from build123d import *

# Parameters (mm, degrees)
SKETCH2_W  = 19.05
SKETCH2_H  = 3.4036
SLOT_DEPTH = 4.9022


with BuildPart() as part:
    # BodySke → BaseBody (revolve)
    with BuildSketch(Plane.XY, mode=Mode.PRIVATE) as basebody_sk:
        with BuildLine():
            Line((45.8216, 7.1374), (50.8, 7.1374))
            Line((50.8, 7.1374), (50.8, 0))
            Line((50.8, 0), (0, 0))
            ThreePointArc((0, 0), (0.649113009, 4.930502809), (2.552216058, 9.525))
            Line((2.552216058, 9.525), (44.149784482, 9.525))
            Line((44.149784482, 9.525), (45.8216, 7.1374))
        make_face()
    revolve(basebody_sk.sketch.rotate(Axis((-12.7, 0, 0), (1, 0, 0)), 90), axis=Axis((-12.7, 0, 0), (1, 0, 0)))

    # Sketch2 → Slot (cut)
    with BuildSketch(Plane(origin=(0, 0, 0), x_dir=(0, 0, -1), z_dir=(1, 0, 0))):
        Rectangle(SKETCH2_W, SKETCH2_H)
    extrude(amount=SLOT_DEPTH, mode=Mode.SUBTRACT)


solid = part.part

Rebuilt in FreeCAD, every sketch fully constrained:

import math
import FreeCAD as App
import Part
import Sketcher
Q = App.Units.Quantity

doc = App.newDocument("Part")
body = doc.addObject("PartDesign::Body", "Body")

# Sketch on XY plane
sketch1 = body.newObject("Sketcher::SketchObject", "Sketch")
sketch1.AttachmentSupport = (doc.getObject("XY_Plane"), [""])
sketch1.MapMode = "FlatFace"
sketch1.addGeometry([
    Part.LineSegment(App.Vector(50.8, 7.1, 0), App.Vector(45.8, 7.1, 0)),  # 0
    Part.LineSegment(App.Vector(45.8, 7.1, 0), App.Vector(44.1, 9.5, 0)),  # 1
    Part.LineSegment(App.Vector(44.1, 9.5, 0), App.Vector(2.6, 9.5, 0)),  # 2
    Part.ArcOfCircle(Part.Circle(App.Vector(19, 0, 0), App.Vector(0, 0, 1), 19), math.radians(150), math.radians(180)),  # 3
    Part.LineSegment(App.Vector(0, 0, 0), App.Vector(50.8, 0, 0)),  # 4
    Part.LineSegment(App.Vector(50.8, 0, 0), App.Vector(50.8, 7.1, 0)),  # 5
], False)
sketch1.addConstraint([
    Sketcher.Constraint("Coincident", 0, 2, 1, 1),
    Sketcher.Constraint("Coincident", 1, 2, 2, 1),
    Sketcher.Constraint("Coincident", 2, 2, 3, 1),
    Sketcher.Constraint("Coincident", 3, 2, 4, 1),
    Sketcher.Constraint("Coincident", 4, 2, 5, 1),
    Sketcher.Constraint("Coincident", 5, 2, 0, 1),
    Sketcher.Constraint("Horizontal", 0),
    Sketcher.Constraint("Horizontal", 2),
    Sketcher.Constraint("Horizontal", 4),
    Sketcher.Constraint("Vertical", 5),
    Sketcher.Constraint("Coincident", 3, 2, -1, 1),
    Sketcher.Constraint("PointOnObject", 3, 3, -1),
    Sketcher.Constraint("DistanceX", 4, 1, 4, 2, Q("2 in")),
    Sketcher.Constraint("Radius", 3, Q("0.75 in")),
    Sketcher.Constraint("Angle", 1, Q("125 deg")),
    Sketcher.Constraint("DistanceX", 0, 2, 0, 1, Q("0.196 in")),
    Sketcher.Constraint("DistanceY", 5, 1, 5, 2, Q("0.281 in")),
    Sketcher.Constraint("DistanceY", -1, 1, 1, 2, Q("0.375 in")),
])
revolution = body.newObject("PartDesign::Revolution", "Revolution")
revolution.Profile = sketch1
revolution.ReferenceAxis = (sketch1, ["H_Axis"])
revolution.Angle = 360

# Sketch on YZ plane
sketch2 = body.newObject("Sketcher::SketchObject", "Sketch001")
sketch2.AttachmentSupport = (doc.getObject("YZ_Plane"), [""])
sketch2.MapMode = "FlatFace"
sketch2.addGeometry([
    Part.LineSegment(App.Vector(1.7, 9.5, 0), App.Vector(-1.7, 9.5, 0)),
    Part.LineSegment(App.Vector(-1.7, 9.5, 0), App.Vector(-1.7, -9.5, 0)),
    Part.LineSegment(App.Vector(-1.7, -9.5, 0), App.Vector(1.7, -9.5, 0)),
    Part.LineSegment(App.Vector(1.7, -9.5, 0), App.Vector(1.7, 9.5, 0)),
], False)
sketch2.addConstraint([
    Sketcher.Constraint("Coincident", 0, 2, 1, 1),
    Sketcher.Constraint("Coincident", 1, 2, 2, 1),
    Sketcher.Constraint("Coincident", 2, 2, 3, 1),
    Sketcher.Constraint("Coincident", 3, 2, 0, 1),
    Sketcher.Constraint("Horizontal", 0),
    Sketcher.Constraint("Vertical", 1),
    Sketcher.Constraint("Horizontal", 2),
    Sketcher.Constraint("Vertical", 3),
    Sketcher.Constraint("Symmetric", 0, 2, 2, 2, -1, 1),
    Sketcher.Constraint("DistanceY", 1, 2, 1, 1, Q("0.75 in")),
    Sketcher.Constraint("DistanceX", 0, 2, 0, 1, Q("0.134 in")),
])
pocket1 = body.newObject("PartDesign::Pocket", "Pocket")
pocket1.Profile = sketch2
pocket1.Length = Q("0.193 in")
pocket1.Reversed = True

doc.recompute()
